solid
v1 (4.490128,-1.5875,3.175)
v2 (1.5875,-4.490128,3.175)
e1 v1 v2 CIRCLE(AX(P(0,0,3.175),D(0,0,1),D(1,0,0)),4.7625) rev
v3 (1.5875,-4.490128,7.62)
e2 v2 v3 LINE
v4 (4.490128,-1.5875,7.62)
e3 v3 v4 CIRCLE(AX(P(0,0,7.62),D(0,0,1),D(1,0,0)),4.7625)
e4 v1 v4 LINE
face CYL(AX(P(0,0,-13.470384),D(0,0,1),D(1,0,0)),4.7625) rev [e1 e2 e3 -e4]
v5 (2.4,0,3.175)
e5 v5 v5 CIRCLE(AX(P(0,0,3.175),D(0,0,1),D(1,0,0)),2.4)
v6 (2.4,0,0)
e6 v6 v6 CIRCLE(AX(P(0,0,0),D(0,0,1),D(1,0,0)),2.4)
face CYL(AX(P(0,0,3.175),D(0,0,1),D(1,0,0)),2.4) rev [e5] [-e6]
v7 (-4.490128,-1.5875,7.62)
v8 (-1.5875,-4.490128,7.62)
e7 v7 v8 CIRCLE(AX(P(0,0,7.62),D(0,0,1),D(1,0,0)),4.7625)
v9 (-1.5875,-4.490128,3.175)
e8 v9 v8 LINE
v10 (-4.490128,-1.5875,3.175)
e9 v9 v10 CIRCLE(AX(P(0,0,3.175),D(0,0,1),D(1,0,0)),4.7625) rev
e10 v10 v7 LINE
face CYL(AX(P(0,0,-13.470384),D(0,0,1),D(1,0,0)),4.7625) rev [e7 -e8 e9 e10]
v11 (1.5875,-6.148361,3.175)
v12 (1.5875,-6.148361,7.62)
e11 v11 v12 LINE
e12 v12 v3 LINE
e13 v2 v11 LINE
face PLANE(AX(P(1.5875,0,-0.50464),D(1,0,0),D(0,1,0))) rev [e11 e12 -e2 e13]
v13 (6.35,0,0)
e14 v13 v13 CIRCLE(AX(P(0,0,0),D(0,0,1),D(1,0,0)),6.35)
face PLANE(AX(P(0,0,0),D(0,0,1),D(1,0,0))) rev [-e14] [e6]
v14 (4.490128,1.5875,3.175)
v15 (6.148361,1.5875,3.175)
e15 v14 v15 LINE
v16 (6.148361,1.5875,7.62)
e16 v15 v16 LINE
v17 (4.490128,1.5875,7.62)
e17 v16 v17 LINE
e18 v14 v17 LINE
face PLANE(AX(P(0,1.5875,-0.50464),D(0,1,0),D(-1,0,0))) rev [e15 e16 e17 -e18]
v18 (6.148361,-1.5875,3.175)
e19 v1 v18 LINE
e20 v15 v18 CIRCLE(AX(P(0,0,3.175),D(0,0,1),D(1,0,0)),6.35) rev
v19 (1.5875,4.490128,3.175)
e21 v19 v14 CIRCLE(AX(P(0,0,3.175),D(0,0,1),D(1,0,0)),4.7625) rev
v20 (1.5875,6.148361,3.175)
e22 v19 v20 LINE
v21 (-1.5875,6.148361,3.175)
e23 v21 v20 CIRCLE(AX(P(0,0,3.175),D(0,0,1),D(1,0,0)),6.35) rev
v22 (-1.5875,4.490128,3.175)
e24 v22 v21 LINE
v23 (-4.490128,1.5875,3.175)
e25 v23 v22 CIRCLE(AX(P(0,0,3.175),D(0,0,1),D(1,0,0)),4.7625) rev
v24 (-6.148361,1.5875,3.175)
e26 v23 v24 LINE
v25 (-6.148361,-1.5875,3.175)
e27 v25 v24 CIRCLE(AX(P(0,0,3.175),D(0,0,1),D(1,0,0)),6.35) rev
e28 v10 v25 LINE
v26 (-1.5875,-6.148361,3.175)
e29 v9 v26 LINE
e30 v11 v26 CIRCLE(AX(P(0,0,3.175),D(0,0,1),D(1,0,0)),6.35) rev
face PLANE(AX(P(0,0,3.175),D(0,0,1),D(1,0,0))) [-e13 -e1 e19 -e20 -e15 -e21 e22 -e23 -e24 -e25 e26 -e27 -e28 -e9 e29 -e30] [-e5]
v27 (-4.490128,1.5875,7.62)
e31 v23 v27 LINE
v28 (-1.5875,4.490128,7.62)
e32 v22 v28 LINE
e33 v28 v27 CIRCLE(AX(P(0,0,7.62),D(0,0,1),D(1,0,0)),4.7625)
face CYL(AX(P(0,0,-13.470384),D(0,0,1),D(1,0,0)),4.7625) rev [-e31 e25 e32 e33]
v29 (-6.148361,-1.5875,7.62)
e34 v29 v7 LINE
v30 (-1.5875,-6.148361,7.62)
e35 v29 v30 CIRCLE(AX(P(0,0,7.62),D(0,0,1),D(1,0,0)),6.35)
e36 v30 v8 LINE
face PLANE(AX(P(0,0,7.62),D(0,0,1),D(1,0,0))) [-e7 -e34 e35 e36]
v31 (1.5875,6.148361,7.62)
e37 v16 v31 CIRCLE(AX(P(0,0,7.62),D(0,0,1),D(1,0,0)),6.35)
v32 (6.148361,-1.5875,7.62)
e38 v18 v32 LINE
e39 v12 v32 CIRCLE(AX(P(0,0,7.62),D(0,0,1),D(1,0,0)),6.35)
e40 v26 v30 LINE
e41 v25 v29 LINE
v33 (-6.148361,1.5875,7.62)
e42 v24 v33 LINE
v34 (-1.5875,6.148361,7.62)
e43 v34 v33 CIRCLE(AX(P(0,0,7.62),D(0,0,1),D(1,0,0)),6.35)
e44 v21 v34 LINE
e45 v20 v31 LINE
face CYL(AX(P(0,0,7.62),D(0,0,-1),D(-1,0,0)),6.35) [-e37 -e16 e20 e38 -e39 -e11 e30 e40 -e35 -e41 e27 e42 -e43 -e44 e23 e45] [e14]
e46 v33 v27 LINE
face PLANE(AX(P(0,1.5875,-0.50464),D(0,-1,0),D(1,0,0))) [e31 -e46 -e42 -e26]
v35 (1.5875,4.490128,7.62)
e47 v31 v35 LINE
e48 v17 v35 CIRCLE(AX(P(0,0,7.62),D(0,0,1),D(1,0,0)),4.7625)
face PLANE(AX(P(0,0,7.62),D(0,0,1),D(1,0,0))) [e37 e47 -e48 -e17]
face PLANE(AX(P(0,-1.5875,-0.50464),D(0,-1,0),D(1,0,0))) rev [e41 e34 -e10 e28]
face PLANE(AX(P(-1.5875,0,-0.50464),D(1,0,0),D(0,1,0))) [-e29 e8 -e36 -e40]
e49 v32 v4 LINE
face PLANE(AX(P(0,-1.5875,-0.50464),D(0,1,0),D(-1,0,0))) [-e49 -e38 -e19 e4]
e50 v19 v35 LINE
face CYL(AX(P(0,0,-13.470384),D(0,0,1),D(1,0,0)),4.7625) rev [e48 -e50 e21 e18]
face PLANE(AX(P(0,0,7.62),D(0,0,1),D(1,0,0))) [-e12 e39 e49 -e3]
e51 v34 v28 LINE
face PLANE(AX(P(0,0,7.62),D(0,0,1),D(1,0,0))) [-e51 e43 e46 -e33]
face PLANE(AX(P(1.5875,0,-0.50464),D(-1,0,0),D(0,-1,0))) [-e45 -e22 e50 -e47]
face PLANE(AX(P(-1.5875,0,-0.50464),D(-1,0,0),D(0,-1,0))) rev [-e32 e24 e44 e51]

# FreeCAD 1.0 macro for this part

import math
import FreeCAD as App
import Part
import Sketcher

V = App.Vector
Q = App.Units.Quantity

doc = App.newDocument("Part")
body = doc.addObject("PartDesign::Body", "Body")

sketch1 = body.newObject("Sketcher::SketchObject", "Sketch")
sketch1.AttachmentSupport = (doc.getObject("XY_Plane"), [""])
sketch1.MapMode = "FlatFace"
sketch1.addGeometry(Part.Circle(V(0, 0, 0), V(0, 0, 1), 6), False)
sketch1.addConstraint([
    Sketcher.Constraint("Coincident", 0, 3, -1, 1),
    Sketcher.Constraint("Diameter", 0, Q("0.5 in")),
])
pad1 = body.newObject("PartDesign::Pad", "Pad")
pad1.Profile = sketch1
pad1.Length = Q("0.3 in")

sketch2 = body.newObject("Sketcher::SketchObject", "Sketch001")
sketch2.AttachmentSupport = (doc.getObject("XY_Plane"), [""])
sketch2.MapMode = "FlatFace"
sketch2.AttachmentOffset = App.Placement(V(0, 0, 0.3 * 25.4), App.Rotation())
sketch2.addGeometry(Part.Circle(V(0, 0, 0), V(0, 0, 1), 4.8), False)
sketch2.addConstraint([
    Sketcher.Constraint("Coincident", 0, 3, -1, 1),
    Sketcher.Constraint("Diameter", 0, Q("0.375 in")),
])
pocket1 = body.newObject("PartDesign::Pocket", "Pocket")
pocket1.Profile = sketch2
pocket1.Length = Q("0.175 in")

sketch3 = body.newObject("Sketcher::SketchObject", "Sketch002")
sketch3.AttachmentSupport = (doc.getObject("XY_Plane"), [""])
sketch3.MapMode = "FlatFace"
sketch3.AttachmentOffset = App.Placement(V(0, 0, 0.125 * 25.4), App.Rotation())
sketch3.addGeometry(Part.Circle(V(0, 0, 0), V(0, 0, 1), 2.4), False)
sketch3.addConstraint([
    Sketcher.Constraint("Coincident", 0, 3, -1, 1),
    Sketcher.Constraint("Diameter", 0, Q("4.8 mm")),
])
doc.recompute()
hole = body.newObject("PartDesign::Hole", "Hole")
hole.Profile = sketch3
hole.ThreadType = "None"
hole.Diameter = 4.8
hole.DepthType = "ThroughAll"

sketch4 = body.newObject("Sketcher::SketchObject", "Sketch003")
sketch4.AttachmentSupport = (doc.getObject("XY_Plane"), [""])
sketch4.MapMode = "FlatFace"
sketch4.AttachmentOffset = App.Placement(V(0, 0, 0.3 * 25.4), App.Rotation())
sketch4.addGeometry([
    Part.ArcOfCircle(Part.Circle(V(0, 0, 0), V(0, 0, 1), 6.3), math.radians(76), math.radians(104)),
    Part.LineSegment(V(-1.6, 6.1, 0), V(-1.6, 4.5, 0)),
    Part.ArcOfCircle(Part.Circle(V(0, 0, 0), V(0, 0, 1), 4.8), math.radians(71), math.radians(109)),
    Part.LineSegment(V(1.6, 4.5, 0), V(1.6, 6.1, 0)),
], False)
sketch4.addConstraint([
    Sketcher.Constraint("Coincident", 0, 2, 1, 1),
    Sketcher.Constraint("Coincident", 1, 2, 2, 2),
    Sketcher.Constraint("Coincident", 2, 1, 3, 1),
    Sketcher.Constraint("Coincident", 3, 2, 0, 1),
    Sketcher.Constraint("Vertical", 1),
    Sketcher.Constraint("Vertical", 3),
    Sketcher.Constraint("Coincident", 0, 3, -1, 1),
    Sketcher.Constraint("Coincident", 2, 3, -1, 1),
    Sketcher.Constraint("Horizontal", 1, 2, 2, 1),
    Sketcher.Constraint("Radius", 0, Q("0.25 in")),
    Sketcher.Constraint("Radius", 2, Q("0.1875 in")),
    Sketcher.Constraint("DistanceX", 0, 2, -1, 1, Q("0.0625 in")),
])
pocket2 = body.newObject("PartDesign::Pocket", "Pocket001")
pocket2.Profile = sketch4
pocket2.Length = Q("0.175 in")
doc.recompute()

polarpattern = body.newObject("PartDesign::PolarPattern", "PolarPattern")
polarpattern.Originals = [pocket2]
polarpattern.Axis = (doc.getObject("Z_Axis"), [""])
polarpattern.Angle = 360
polarpattern.Occurrences = 4
body.Tip = polarpattern

doc.recompute()
